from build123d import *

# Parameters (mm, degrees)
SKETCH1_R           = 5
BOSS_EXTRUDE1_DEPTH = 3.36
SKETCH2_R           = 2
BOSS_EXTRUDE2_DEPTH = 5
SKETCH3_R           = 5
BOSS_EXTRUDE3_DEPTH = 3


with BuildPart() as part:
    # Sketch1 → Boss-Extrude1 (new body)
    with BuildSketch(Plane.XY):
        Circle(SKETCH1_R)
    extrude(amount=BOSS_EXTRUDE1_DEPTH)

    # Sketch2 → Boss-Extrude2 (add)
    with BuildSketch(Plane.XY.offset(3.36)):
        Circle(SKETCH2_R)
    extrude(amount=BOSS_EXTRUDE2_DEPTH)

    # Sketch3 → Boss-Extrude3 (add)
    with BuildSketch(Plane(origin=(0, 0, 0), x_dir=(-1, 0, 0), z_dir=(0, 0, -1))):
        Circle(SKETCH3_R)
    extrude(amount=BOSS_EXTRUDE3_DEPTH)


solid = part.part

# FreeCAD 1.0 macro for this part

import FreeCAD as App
import Part
import Sketcher

doc = App.newDocument("Part")
params = doc.addObject("Spreadsheet::Sheet", "Params")
for row, (alias, value) in enumerate([
    ("sketch1_diameter", "10 mm"),
    ("pad1_length", "3.36 mm"),
    ("sketch2_diameter", "4 mm"),
    ("pad2_length", "5 mm"),
    ("sketch3_diameter", "10 mm"),
    ("pad3_length", "3 mm"),
], start=1):
    params.set(f"A{row}", alias)
    params.set(f"B{row}", "=" + value)
    params.setAlias(f"B{row}", alias)

body = doc.addObject("PartDesign::Body", "Body")

# Sketch on XY plane
sketch1 = body.newObject("Sketcher::SketchObject", "Sketch")
sketch1.AttachmentSupport = (doc.getObject("XY_Plane"), [""])
sketch1.MapMode = "FlatFace"
sketch1.addGeometry(Part.Circle(App.Vector(0, 0, 0), App.Vector(0, 0, 1), 5), False)
sketch1.addConstraint(Sketcher.Constraint("Coincident", 0, 3, -1, 1))
sketch1.addConstraint(Sketcher.Constraint("Diameter", 0, 10.0))
sketch1.setExpression("Constraints[1]", "Params.sketch1_diameter")
pad1 = body.newObject("PartDesign::Pad", "Pad")
pad1.Profile = sketch1
pad1.setExpression("Length", "Params.pad1_length")

# Sketch on XY plane
sketch2 = body.newObject("Sketcher::SketchObject", "Sketch001")
sketch2.AttachmentSupport = (doc.getObject("XY_Plane"), [""])
sketch2.MapMode = "FlatFace"
sketch2.AttachmentOffset = App.Placement(App.Vector(0, 0, 3.36), App.Rotation())
sketch2.addGeometry(Part.Circle(App.Vector(0, 0, 0), App.Vector(0, 0, 1), 2), False)
sketch2.addConstraint(Sketcher.Constraint("Coincident", 0, 3, -1, 1))
sketch2.addConstraint(Sketcher.Constraint("Diameter", 0, 4.0))
sketch2.setExpression("Constraints[1]", "Params.sketch2_diameter")
pad2 = body.newObject("PartDesign::Pad", "Pad001")
pad2.Profile = sketch2
pad2.setExpression("Length", "Params.pad2_length")

# Sketch on XY plane
sketch3 = body.newObject("Sketcher::SketchObject", "Sketch002")
sketch3.AttachmentSupport = (doc.getObject("XY_Plane"), [""])
sketch3.MapMode = "FlatFace"
sketch3.addGeometry(Part.Circle(App.Vector(0, 0, 0), App.Vector(0, 0, 1), 5), False)
sketch3.addConstraint(Sketcher.Constraint("Coincident", 0, 3, -1, 1))
sketch3.addConstraint(Sketcher.Constraint("Diameter", 0, 10.0))
sketch3.setExpression("Constraints[1]", "Params.sketch3_diameter")
pad3 = body.newObject("PartDesign::Pad", "Pad002")
pad3.Profile = sketch3
pad3.setExpression("Length", "Params.pad3_length")
pad3.Reversed = True

doc.recompute()
